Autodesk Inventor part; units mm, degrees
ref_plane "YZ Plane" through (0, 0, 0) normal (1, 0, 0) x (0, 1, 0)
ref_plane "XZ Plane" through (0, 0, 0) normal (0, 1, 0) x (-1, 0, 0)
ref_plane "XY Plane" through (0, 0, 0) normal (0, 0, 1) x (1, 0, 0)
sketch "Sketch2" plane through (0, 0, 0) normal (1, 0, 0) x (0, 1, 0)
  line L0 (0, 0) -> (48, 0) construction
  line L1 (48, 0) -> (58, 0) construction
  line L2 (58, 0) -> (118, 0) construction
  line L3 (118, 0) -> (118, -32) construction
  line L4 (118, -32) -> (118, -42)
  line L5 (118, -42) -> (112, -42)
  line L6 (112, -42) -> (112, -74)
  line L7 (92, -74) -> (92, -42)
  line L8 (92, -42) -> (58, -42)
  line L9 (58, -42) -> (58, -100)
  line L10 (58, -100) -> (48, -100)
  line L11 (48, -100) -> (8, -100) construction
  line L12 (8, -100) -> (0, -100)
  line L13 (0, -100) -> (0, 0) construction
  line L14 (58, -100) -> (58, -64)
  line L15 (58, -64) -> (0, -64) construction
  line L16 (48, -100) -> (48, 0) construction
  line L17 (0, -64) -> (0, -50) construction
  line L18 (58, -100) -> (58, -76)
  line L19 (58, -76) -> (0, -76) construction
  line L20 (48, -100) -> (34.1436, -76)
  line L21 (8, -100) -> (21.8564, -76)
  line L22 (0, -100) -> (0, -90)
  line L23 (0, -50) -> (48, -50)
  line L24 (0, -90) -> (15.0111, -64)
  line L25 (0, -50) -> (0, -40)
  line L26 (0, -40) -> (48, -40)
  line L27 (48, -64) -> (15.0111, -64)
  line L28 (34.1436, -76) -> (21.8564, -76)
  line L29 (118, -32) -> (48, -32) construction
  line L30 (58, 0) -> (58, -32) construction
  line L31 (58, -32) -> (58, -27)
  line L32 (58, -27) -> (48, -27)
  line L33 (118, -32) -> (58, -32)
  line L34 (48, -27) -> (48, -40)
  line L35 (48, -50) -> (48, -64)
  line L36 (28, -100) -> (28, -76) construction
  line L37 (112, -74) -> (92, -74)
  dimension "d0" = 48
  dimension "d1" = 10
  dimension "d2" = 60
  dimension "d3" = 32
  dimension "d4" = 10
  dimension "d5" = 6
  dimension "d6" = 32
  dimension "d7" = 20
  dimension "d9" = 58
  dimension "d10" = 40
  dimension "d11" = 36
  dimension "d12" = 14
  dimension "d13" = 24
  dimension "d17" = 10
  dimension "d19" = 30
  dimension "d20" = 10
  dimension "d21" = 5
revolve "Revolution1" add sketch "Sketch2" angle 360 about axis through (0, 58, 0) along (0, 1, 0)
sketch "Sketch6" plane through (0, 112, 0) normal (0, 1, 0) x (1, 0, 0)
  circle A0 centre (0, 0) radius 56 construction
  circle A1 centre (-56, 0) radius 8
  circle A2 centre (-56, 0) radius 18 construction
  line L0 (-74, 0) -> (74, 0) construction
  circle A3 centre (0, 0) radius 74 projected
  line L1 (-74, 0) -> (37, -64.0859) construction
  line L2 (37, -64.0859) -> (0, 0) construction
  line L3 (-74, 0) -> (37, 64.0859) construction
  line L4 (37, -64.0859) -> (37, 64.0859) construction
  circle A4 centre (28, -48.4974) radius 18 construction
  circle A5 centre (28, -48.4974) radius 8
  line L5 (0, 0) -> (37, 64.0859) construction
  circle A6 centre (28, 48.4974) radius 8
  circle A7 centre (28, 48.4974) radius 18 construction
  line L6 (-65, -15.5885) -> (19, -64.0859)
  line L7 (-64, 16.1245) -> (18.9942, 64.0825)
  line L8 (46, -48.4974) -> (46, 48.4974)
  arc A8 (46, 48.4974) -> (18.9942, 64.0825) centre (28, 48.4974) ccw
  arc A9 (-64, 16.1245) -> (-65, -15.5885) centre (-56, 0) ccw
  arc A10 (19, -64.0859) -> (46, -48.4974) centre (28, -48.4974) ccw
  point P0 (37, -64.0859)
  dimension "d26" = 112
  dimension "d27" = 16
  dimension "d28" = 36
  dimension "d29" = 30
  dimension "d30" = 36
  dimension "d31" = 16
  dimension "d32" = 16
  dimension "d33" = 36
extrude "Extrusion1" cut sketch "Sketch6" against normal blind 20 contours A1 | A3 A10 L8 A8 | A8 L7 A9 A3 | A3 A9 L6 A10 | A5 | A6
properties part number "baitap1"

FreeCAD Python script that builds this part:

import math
import FreeCAD as App
import Part
import Sketcher
Q = App.Units.Quantity


def add_polygon(sketch, points):
    """Adds a closed chain of lines whose ends are joined by coincident constraints."""
    first, n = sketch.GeometryCount, len(points)
    for a, b in zip(points, points[1:] + points[:1]):
        sketch.addGeometry(Part.LineSegment(App.Vector(*a, 0), App.Vector(*b, 0)), False)
    for i in range(n):
        sketch.addConstraint(Sketcher.Constraint("Coincident", first + i, 2, first + (i + 1) % n, 1))

doc = App.newDocument("Part")
params = doc.addObject("Spreadsheet::Sheet", "Params")
for row, (alias, value) in enumerate([
    ("sketch1_width", "60 mm"),
    ("sketch1_width2", "10 mm"),
    ("sketch1_width3", "48 mm"),
    ("sketch1_width4", "20 mm"),
    ("sketch1_width5", "6 mm"),
    ("revolution_angle", "360 deg"),
    ("sketch2_diameter", "16 mm"),
    ("sketch2_radius", "18 mm"),
    ("sketch2_radius2", "74 mm"),
    ("pocket1_length", "20 mm"),
], start=1):
    params.set(f"A{row}", alias)
    params.set(f"B{row}", "=" + value)
    params.setAlias(f"B{row}", alias)

body = doc.addObject("PartDesign::Body", "Body")

# Sketch on YZ plane
sketch1 = doc.addObject("Sketcher::SketchObject", "Sketch")
body.addObject(sketch1)
sketch1.AttachmentSupport = (doc.YZ_Plane, [""])
sketch1.MapMode = "FlatFace"
add_polygon(sketch1, [(118, -42), (118, -32), (58, -32), (58, -27), (48, -27), (48, -40), (0, -40), (0, -50), (48, -50), (48, -64), (15, -64), (0, -90), (0, -100), (8, -100), (22, -76), (34, -76), (48, -100), (58, -100), (58, -42), (92, -42), (92, -74), (112, -74), (112, -42)])  # lines 0-22
sketch1.addConstraint(Sketcher.Constraint("Vertical", 0))
sketch1.addConstraint(Sketcher.Constraint("Horizontal", 1))
sketch1.addConstraint(Sketcher.Constraint("Vertical", 2))
sketch1.addConstraint(Sketcher.Constraint("Horizontal", 3))
sketch1.addConstraint(Sketcher.Constraint("Vertical", 4))
sketch1.addConstraint(Sketcher.Constraint("Horizontal", 5))
sketch1.addConstraint(Sketcher.Constraint("Vertical", 6))
sketch1.addConstraint(Sketcher.Constraint("Horizontal", 7))
sketch1.addConstraint(Sketcher.Constraint("Vertical", 8))
sketch1.addConstraint(Sketcher.Constraint("Horizontal", 9))
sketch1.addConstraint(Sketcher.Constraint("Vertical", 11))
sketch1.addConstraint(Sketcher.Constraint("Horizontal", 12))
sketch1.addConstraint(Sketcher.Constraint("Horizontal", 14))
sketch1.addConstraint(Sketcher.Constraint("Horizontal", 16))
sketch1.addConstraint(Sketcher.Constraint("Vertical", 17))
sketch1.addConstraint(Sketcher.Constraint("Horizontal", 18))
sketch1.addConstraint(Sketcher.Constraint("Vertical", 19))
sketch1.addConstraint(Sketcher.Constraint("Horizontal", 20))
sketch1.addConstraint(Sketcher.Constraint("Vertical", 21))
sketch1.addConstraint(Sketcher.Constraint("Horizontal", 22))
sketch1.addConstraint(Sketcher.Constraint("PointOnObject", 5, 2, -2))
sketch1.addConstraint(Sketcher.Constraint("PointOnObject", 10, 2, -2))
sketch1.addConstraint(Sketcher.Constraint("Parallel", 10, 13))
sketch1.addConstraint(Sketcher.Constraint("Horizontal", 12, 2, 15, 2))
sketch1.addConstraint(Sketcher.Constraint("Horizontal", 18, 2, 21, 2))
sketch1.addConstraint(Sketcher.Constraint("Vertical", 4, 2, 7, 2))
sketch1.addConstraint(Sketcher.Constraint("Vertical", 8, 2, 15, 2))
sketch1.addConstraint(Sketcher.Constraint("Vertical", 2, 2, 16, 2))
sketch1.addConstraint(Sketcher.Constraint("Equal", 16, 0))
sketch1.addConstraint(Sketcher.Constraint("Equal", 0, 6))
sketch1.addConstraint(Sketcher.Constraint("Equal", 6, 11))
sketch1.addConstraint(Sketcher.Constraint("Equal", 13, 15))
sketch1.addConstraint(Sketcher.Constraint("DistanceX", 1, 2, 1, 1, 60.0))
sketch1.addConstraint(Sketcher.Constraint("DistanceX", 3, 2, 3, 1, 10.0))
sketch1.addConstraint(Sketcher.Constraint("DistanceX", 5, 2, 5, 1, 48.0))
sketch1.addConstraint(Sketcher.Constraint("DistanceX", 20, 1, 20, 2, 20.0))
sketch1.addConstraint(Sketcher.Constraint("DistanceX", 22, 1, 22, 2, 6.0))
sketch1.addConstraint(Sketcher.Constraint("DistanceY", 2, 1, 2, 2, 5.0))
sketch1.addConstraint(Sketcher.Constraint("DistanceY", 8, 2, 8, 1, 14.0))
sketch1.addConstraint(Sketcher.Constraint("DistanceY", 17, 1, 17, 2, 58.0))
sketch1.addConstraint(Sketcher.Constraint("DistanceY", 19, 2, 19, 1, 32.0))
sketch1.addConstraint(Sketcher.Constraint("Angle", 13, Q("60 deg")))
sketch1.addConstraint(Sketcher.Constraint("DistanceY", 0, 2, -1, 1, 32.0))
sketch1.addConstraint(Sketcher.Constraint("DistanceY", 4, 2, -1, 1, 40.0))
sketch1.addConstraint(Sketcher.Constraint("DistanceX", 12, 2, 8, 2, 40.0))
sketch1.addConstraint(Sketcher.Constraint("DistanceY", 10, 2, 13, 2, 14.0))
sketch1.setExpression("Constraints[55]", "Params.sketch1_width")
sketch1.setExpression("Constraints[56]", "Params.sketch1_width2")
sketch1.setExpression("Constraints[57]", "Params.sketch1_width3")
sketch1.setExpression("Constraints[58]", "Params.sketch1_width4")
sketch1.setExpression("Constraints[59]", "Params.sketch1_width5")
revolution = doc.addObject("PartDesign::Revolution", "Revolution")
body.addObject(revolution)
revolution.Profile = sketch1
revolution.ReferenceAxis = (sketch1, ["H_Axis"])
revolution.setExpression("Angle", "Params.revolution_angle")

# Sketch on XZ plane
sketch2 = doc.addObject("Sketcher::SketchObject", "Sketch001")
body.addObject(sketch2)
sketch2.AttachmentSupport = (doc.XZ_Plane, [""])
sketch2.MapMode = "FlatFace"
sketch2.AttachmentOffset = App.Placement(App.Vector(0, 0, -112), App.Rotation())
sketch2.addGeometry(Part.Circle(App.Vector(-56, 0, 0), App.Vector(0, 0, 1), 8), False)
sketch2.addGeometry(Part.ArcOfCircle(Part.Circle(App.Vector(0, 0, 0), App.Vector(0, 0, 1), 74), math.radians(-60), math.radians(60)), False)
sketch2.addGeometry(Part.ArcOfCircle(Part.Circle(App.Vector(28, -48, 0), App.Vector(0, 0, 1), 18), math.radians(-60), math.radians(0)), False)
sketch2.addGeometry(Part.LineSegment(App.Vector(46, -48, 0), App.Vector(46, 48, 0)), False)
sketch2.addGeometry(Part.ArcOfCircle(Part.Circle(App.Vector(28, 48, 0), App.Vector(0, 0, 1), 18), math.radians(0), math.radians(60)), False)
sketch2.addGeometry(Part.ArcOfCircle(Part.Circle(App.Vector(28, -48, 0), App.Vector(0, 0, 1), 18), math.radians(-120), math.radians(-60)), False)
sketch2.addGeometry(Part.ArcOfCircle(Part.Circle(App.Vector(0, 0, 0), App.Vector(0, 0, 1), 74), math.radians(180), math.radians(300)), False)
sketch2.addGeometry(Part.ArcOfCircle(Part.Circle(App.Vector(-56, 0, 0), App.Vector(0, 0, 1), 18), math.radians(180), math.radians(244)), False)
sketch2.addGeometry(Part.LineSegment(App.Vector(-64, -16, 0), App.Vector(19, -64, 0)), False)
sketch2.addGeometry(Part.ArcOfCircle(Part.Circle(App.Vector(0, 0, 0), App.Vector(0, 0, 1), 74), math.radians(60), math.radians(180)), False)
sketch2.addGeometry(Part.ArcOfCircle(Part.Circle(App.Vector(28, 48, 0), App.Vector(0, 0, 1), 18), math.radians(60), math.radians(120)), False)
sketch2.addGeometry(Part.LineSegment(App.Vector(19, 64, 0), App.Vector(-65, 16, 0)), False)
sketch2.addGeometry(Part.ArcOfCircle(Part.Circle(App.Vector(-56, 0, 0), App.Vector(0, 0, 1), 18), math.radians(120), math.radians(180)), False)
sketch2.addGeometry(Part.Circle(App.Vector(28, 48, 0), App.Vector(0, 0, 1), 8), False)
sketch2.addGeometry(Part.Circle(App.Vector(28, -48, 0), App.Vector(0, 0, 1), 8), False)
sketch2.addConstraint(Sketcher.Constraint("Tangent", 1, 1, 2, 1))
sketch2.addConstraint(Sketcher.Constraint("Tangent", 2, 2, 3, 1))
sketch2.addConstraint(Sketcher.Constraint("Tangent", 3, 2, 4, 1))
sketch2.addConstraint(Sketcher.Constraint("Tangent", 4, 2, 1, 2))
sketch2.addConstraint(Sketcher.Constraint("Tangent", 5, 2, 6, 2))
sketch2.addConstraint(Sketcher.Constraint("Tangent", 6, 1, 7, 1))
sketch2.addConstraint(Sketcher.Constraint("Coincident", 7, 2, 8, 1))
sketch2.addConstraint(Sketcher.Constraint("Tangent", 8, 2, 5, 1))
sketch2.addConstraint(Sketcher.Constraint("Tangent", 9, 1, 10, 1))
sketch2.addConstraint(Sketcher.Constraint("Tangent", 10, 2, 11, 1))
sketch2.addConstraint(Sketcher.Constraint("Tangent", 11, 2, 12, 1))
sketch2.addConstraint(Sketcher.Constraint("Tangent", 12, 2, 9, 2))
sketch2.addConstraint(Sketcher.Constraint("Vertical", 3))
sketch2.addConstraint(Sketcher.Constraint("Coincident", 1, 3, -1, 1))
sketch2.addConstraint(Sketcher.Constraint("Coincident", 6, 3, -1, 1))
sketch2.addConstraint(Sketcher.Constraint("Coincident", 9, 3, -1, 1))
sketch2.addConstraint(Sketcher.Constraint("Coincident", 5, 3, 2, 3))
sketch2.addConstraint(Sketcher.Constraint("Coincident", 7, 3, 0, 3))
sketch2.addConstraint(Sketcher.Constraint("Coincident", 10, 3, 4, 3))
sketch2.addConstraint(Sketcher.Constraint("Coincident", 12, 3, 0, 3))
sketch2.addConstraint(Sketcher.Constraint("Coincident", 13, 3, 4, 3))
sketch2.addConstraint(Sketcher.Constraint("Coincident", 14, 3, 2, 3))
sketch2.addConstraint(Sketcher.Constraint("Equal", 2, 4))
sketch2.addConstraint(Sketcher.Constraint("Equal", 4, 5))
sketch2.addConstraint(Sketcher.Constraint("Equal", 5, 7))
sketch2.addConstraint(Sketcher.Constraint("Equal", 6, 9))
sketch2.addConstraint(Sketcher.Constraint("Equal", 0, 13))
sketch2.addConstraint(Sketcher.Constraint("Equal", 13, 14))
sketch2.addConstraint(Sketcher.Constraint("PointOnObject", 0, 3, -1))
sketch2.addConstraint(Sketcher.Constraint("Diameter", 0, 16.0))
sketch2.addConstraint(Sketcher.Constraint("Radius", 2, 18.0))
sketch2.addConstraint(Sketcher.Constraint("Radius", 1, 74.0))
sketch2.addConstraint(Sketcher.Constraint("Angle", 11, Q("-150 deg")))
sketch2.addConstraint(Sketcher.Constraint("DistanceX", 7, 2, -1, 1, 64.0))
sketch2.setExpression("Constraints[29]", "Params.sketch2_diameter")
sketch2.setExpression("Constraints[30]", "Params.sketch2_radius")
sketch2.setExpression("Constraints[31]", "Params.sketch2_radius2")
pocket1 = doc.addObject("PartDesign::Pocket", "Pocket")
body.addObject(pocket1)
pocket1.Profile = sketch2
pocket1.setExpression("Length", "Params.pocket1_length")
pocket1.Reversed = True

doc.recompute()
